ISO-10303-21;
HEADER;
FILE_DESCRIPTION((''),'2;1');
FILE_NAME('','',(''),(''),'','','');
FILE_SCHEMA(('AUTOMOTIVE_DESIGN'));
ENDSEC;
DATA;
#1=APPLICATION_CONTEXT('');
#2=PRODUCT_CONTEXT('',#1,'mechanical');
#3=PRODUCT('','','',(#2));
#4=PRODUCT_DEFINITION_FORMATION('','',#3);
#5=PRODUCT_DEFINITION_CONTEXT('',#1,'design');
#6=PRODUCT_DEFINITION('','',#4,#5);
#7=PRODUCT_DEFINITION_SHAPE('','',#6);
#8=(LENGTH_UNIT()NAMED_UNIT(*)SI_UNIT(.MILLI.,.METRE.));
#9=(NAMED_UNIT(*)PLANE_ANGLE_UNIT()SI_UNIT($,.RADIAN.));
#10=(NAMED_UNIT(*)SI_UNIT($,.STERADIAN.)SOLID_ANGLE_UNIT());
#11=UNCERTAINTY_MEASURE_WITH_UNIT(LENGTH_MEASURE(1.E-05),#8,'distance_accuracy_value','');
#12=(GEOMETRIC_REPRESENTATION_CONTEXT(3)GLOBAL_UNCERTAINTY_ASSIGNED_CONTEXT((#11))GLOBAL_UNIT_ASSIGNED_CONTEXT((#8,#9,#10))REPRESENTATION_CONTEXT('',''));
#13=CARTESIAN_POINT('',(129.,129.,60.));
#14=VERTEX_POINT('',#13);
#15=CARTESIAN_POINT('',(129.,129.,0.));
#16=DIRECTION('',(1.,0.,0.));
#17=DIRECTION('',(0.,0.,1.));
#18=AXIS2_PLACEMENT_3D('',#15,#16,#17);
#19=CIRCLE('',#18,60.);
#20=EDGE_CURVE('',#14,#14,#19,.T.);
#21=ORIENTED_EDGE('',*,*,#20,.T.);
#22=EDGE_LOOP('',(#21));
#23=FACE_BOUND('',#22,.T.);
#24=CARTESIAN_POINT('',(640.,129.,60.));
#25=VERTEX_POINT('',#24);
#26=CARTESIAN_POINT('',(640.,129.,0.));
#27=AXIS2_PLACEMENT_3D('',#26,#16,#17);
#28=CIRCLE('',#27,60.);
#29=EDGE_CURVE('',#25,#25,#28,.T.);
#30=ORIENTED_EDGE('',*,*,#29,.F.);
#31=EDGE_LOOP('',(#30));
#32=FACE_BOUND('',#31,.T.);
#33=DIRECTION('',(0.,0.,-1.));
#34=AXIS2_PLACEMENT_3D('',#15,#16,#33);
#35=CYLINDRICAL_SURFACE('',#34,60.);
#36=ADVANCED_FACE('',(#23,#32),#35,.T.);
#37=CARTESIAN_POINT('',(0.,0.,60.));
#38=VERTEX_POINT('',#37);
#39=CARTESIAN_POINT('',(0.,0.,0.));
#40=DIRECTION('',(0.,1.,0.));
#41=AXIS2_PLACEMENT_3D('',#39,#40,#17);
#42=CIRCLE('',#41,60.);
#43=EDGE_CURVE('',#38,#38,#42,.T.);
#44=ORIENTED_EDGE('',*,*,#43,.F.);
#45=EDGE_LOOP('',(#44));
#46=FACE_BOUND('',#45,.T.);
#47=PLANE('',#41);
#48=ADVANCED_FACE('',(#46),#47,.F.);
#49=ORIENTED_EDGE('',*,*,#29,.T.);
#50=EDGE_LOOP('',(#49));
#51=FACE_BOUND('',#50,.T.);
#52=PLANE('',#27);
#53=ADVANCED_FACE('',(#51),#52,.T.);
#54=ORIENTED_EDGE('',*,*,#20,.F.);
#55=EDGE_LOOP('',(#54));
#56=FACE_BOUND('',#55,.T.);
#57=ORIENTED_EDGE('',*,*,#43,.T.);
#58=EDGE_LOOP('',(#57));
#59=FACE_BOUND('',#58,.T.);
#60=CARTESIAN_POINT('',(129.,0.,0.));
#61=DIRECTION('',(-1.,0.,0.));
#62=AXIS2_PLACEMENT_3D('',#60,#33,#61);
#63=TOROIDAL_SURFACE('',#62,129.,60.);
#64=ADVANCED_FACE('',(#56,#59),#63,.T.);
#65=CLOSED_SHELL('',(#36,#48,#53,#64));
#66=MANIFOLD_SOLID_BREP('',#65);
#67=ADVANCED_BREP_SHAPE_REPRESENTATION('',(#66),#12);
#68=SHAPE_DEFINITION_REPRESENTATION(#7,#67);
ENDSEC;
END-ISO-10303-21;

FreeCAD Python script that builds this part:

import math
import FreeCAD as App
import Part
import Sketcher

doc = App.newDocument("Part")
body = doc.addObject("PartDesign::Body", "Body")

sketch1 = doc.addObject("Sketcher::SketchObject", "Sketch")
body.addObject(sketch1)
sketch1.AttachmentSupport = (doc.XZ_Plane, [""])
sketch1.MapMode = "FlatFace"
sketch1.addGeometry(Part.Circle(App.Vector(0, 0, 0), App.Vector(0, 0, 1), 60), False)
sketch1.addConstraint([
    Sketcher.Constraint("Coincident", 0, 3, -1, 1),
    Sketcher.Constraint("Diameter", 0, 120.0),
])

sketch2 = doc.addObject("Sketcher::SketchObject", "Sketch001")
body.addObject(sketch2)
sketch2.AttachmentSupport = (doc.XY_Plane, [""])
sketch2.MapMode = "FlatFace"
sketch2.addGeometry([
    Part.LineSegment(App.Vector(640, 129, 0), App.Vector(129, 129, 0)),
    Part.ArcOfCircle(Part.Circle(App.Vector(129, 0, 0), App.Vector(0, 0, 1), 129), math.radians(90), math.radians(180)),
], False)
sketch2.addConstraint([
    Sketcher.Constraint("Tangent", 0, 2, 1, 1),
    Sketcher.Constraint("Horizontal", 0),
    Sketcher.Constraint("Coincident", 1, 2, -1, 1),
    Sketcher.Constraint("PointOnObject", 1, 3, -1),
    Sketcher.Constraint("Radius", 1, 129.0),
    Sketcher.Constraint("DistanceX", 0, 2, 0, 1, 511.0),
])
doc.recompute()

additivepipe = doc.addObject("PartDesign::AdditivePipe", "AdditivePipe")
body.addObject(additivepipe)
additivepipe.Profile = sketch1
additivepipe.Spine = (sketch2, ["Edge1", "Edge2"])

doc.recompute()
